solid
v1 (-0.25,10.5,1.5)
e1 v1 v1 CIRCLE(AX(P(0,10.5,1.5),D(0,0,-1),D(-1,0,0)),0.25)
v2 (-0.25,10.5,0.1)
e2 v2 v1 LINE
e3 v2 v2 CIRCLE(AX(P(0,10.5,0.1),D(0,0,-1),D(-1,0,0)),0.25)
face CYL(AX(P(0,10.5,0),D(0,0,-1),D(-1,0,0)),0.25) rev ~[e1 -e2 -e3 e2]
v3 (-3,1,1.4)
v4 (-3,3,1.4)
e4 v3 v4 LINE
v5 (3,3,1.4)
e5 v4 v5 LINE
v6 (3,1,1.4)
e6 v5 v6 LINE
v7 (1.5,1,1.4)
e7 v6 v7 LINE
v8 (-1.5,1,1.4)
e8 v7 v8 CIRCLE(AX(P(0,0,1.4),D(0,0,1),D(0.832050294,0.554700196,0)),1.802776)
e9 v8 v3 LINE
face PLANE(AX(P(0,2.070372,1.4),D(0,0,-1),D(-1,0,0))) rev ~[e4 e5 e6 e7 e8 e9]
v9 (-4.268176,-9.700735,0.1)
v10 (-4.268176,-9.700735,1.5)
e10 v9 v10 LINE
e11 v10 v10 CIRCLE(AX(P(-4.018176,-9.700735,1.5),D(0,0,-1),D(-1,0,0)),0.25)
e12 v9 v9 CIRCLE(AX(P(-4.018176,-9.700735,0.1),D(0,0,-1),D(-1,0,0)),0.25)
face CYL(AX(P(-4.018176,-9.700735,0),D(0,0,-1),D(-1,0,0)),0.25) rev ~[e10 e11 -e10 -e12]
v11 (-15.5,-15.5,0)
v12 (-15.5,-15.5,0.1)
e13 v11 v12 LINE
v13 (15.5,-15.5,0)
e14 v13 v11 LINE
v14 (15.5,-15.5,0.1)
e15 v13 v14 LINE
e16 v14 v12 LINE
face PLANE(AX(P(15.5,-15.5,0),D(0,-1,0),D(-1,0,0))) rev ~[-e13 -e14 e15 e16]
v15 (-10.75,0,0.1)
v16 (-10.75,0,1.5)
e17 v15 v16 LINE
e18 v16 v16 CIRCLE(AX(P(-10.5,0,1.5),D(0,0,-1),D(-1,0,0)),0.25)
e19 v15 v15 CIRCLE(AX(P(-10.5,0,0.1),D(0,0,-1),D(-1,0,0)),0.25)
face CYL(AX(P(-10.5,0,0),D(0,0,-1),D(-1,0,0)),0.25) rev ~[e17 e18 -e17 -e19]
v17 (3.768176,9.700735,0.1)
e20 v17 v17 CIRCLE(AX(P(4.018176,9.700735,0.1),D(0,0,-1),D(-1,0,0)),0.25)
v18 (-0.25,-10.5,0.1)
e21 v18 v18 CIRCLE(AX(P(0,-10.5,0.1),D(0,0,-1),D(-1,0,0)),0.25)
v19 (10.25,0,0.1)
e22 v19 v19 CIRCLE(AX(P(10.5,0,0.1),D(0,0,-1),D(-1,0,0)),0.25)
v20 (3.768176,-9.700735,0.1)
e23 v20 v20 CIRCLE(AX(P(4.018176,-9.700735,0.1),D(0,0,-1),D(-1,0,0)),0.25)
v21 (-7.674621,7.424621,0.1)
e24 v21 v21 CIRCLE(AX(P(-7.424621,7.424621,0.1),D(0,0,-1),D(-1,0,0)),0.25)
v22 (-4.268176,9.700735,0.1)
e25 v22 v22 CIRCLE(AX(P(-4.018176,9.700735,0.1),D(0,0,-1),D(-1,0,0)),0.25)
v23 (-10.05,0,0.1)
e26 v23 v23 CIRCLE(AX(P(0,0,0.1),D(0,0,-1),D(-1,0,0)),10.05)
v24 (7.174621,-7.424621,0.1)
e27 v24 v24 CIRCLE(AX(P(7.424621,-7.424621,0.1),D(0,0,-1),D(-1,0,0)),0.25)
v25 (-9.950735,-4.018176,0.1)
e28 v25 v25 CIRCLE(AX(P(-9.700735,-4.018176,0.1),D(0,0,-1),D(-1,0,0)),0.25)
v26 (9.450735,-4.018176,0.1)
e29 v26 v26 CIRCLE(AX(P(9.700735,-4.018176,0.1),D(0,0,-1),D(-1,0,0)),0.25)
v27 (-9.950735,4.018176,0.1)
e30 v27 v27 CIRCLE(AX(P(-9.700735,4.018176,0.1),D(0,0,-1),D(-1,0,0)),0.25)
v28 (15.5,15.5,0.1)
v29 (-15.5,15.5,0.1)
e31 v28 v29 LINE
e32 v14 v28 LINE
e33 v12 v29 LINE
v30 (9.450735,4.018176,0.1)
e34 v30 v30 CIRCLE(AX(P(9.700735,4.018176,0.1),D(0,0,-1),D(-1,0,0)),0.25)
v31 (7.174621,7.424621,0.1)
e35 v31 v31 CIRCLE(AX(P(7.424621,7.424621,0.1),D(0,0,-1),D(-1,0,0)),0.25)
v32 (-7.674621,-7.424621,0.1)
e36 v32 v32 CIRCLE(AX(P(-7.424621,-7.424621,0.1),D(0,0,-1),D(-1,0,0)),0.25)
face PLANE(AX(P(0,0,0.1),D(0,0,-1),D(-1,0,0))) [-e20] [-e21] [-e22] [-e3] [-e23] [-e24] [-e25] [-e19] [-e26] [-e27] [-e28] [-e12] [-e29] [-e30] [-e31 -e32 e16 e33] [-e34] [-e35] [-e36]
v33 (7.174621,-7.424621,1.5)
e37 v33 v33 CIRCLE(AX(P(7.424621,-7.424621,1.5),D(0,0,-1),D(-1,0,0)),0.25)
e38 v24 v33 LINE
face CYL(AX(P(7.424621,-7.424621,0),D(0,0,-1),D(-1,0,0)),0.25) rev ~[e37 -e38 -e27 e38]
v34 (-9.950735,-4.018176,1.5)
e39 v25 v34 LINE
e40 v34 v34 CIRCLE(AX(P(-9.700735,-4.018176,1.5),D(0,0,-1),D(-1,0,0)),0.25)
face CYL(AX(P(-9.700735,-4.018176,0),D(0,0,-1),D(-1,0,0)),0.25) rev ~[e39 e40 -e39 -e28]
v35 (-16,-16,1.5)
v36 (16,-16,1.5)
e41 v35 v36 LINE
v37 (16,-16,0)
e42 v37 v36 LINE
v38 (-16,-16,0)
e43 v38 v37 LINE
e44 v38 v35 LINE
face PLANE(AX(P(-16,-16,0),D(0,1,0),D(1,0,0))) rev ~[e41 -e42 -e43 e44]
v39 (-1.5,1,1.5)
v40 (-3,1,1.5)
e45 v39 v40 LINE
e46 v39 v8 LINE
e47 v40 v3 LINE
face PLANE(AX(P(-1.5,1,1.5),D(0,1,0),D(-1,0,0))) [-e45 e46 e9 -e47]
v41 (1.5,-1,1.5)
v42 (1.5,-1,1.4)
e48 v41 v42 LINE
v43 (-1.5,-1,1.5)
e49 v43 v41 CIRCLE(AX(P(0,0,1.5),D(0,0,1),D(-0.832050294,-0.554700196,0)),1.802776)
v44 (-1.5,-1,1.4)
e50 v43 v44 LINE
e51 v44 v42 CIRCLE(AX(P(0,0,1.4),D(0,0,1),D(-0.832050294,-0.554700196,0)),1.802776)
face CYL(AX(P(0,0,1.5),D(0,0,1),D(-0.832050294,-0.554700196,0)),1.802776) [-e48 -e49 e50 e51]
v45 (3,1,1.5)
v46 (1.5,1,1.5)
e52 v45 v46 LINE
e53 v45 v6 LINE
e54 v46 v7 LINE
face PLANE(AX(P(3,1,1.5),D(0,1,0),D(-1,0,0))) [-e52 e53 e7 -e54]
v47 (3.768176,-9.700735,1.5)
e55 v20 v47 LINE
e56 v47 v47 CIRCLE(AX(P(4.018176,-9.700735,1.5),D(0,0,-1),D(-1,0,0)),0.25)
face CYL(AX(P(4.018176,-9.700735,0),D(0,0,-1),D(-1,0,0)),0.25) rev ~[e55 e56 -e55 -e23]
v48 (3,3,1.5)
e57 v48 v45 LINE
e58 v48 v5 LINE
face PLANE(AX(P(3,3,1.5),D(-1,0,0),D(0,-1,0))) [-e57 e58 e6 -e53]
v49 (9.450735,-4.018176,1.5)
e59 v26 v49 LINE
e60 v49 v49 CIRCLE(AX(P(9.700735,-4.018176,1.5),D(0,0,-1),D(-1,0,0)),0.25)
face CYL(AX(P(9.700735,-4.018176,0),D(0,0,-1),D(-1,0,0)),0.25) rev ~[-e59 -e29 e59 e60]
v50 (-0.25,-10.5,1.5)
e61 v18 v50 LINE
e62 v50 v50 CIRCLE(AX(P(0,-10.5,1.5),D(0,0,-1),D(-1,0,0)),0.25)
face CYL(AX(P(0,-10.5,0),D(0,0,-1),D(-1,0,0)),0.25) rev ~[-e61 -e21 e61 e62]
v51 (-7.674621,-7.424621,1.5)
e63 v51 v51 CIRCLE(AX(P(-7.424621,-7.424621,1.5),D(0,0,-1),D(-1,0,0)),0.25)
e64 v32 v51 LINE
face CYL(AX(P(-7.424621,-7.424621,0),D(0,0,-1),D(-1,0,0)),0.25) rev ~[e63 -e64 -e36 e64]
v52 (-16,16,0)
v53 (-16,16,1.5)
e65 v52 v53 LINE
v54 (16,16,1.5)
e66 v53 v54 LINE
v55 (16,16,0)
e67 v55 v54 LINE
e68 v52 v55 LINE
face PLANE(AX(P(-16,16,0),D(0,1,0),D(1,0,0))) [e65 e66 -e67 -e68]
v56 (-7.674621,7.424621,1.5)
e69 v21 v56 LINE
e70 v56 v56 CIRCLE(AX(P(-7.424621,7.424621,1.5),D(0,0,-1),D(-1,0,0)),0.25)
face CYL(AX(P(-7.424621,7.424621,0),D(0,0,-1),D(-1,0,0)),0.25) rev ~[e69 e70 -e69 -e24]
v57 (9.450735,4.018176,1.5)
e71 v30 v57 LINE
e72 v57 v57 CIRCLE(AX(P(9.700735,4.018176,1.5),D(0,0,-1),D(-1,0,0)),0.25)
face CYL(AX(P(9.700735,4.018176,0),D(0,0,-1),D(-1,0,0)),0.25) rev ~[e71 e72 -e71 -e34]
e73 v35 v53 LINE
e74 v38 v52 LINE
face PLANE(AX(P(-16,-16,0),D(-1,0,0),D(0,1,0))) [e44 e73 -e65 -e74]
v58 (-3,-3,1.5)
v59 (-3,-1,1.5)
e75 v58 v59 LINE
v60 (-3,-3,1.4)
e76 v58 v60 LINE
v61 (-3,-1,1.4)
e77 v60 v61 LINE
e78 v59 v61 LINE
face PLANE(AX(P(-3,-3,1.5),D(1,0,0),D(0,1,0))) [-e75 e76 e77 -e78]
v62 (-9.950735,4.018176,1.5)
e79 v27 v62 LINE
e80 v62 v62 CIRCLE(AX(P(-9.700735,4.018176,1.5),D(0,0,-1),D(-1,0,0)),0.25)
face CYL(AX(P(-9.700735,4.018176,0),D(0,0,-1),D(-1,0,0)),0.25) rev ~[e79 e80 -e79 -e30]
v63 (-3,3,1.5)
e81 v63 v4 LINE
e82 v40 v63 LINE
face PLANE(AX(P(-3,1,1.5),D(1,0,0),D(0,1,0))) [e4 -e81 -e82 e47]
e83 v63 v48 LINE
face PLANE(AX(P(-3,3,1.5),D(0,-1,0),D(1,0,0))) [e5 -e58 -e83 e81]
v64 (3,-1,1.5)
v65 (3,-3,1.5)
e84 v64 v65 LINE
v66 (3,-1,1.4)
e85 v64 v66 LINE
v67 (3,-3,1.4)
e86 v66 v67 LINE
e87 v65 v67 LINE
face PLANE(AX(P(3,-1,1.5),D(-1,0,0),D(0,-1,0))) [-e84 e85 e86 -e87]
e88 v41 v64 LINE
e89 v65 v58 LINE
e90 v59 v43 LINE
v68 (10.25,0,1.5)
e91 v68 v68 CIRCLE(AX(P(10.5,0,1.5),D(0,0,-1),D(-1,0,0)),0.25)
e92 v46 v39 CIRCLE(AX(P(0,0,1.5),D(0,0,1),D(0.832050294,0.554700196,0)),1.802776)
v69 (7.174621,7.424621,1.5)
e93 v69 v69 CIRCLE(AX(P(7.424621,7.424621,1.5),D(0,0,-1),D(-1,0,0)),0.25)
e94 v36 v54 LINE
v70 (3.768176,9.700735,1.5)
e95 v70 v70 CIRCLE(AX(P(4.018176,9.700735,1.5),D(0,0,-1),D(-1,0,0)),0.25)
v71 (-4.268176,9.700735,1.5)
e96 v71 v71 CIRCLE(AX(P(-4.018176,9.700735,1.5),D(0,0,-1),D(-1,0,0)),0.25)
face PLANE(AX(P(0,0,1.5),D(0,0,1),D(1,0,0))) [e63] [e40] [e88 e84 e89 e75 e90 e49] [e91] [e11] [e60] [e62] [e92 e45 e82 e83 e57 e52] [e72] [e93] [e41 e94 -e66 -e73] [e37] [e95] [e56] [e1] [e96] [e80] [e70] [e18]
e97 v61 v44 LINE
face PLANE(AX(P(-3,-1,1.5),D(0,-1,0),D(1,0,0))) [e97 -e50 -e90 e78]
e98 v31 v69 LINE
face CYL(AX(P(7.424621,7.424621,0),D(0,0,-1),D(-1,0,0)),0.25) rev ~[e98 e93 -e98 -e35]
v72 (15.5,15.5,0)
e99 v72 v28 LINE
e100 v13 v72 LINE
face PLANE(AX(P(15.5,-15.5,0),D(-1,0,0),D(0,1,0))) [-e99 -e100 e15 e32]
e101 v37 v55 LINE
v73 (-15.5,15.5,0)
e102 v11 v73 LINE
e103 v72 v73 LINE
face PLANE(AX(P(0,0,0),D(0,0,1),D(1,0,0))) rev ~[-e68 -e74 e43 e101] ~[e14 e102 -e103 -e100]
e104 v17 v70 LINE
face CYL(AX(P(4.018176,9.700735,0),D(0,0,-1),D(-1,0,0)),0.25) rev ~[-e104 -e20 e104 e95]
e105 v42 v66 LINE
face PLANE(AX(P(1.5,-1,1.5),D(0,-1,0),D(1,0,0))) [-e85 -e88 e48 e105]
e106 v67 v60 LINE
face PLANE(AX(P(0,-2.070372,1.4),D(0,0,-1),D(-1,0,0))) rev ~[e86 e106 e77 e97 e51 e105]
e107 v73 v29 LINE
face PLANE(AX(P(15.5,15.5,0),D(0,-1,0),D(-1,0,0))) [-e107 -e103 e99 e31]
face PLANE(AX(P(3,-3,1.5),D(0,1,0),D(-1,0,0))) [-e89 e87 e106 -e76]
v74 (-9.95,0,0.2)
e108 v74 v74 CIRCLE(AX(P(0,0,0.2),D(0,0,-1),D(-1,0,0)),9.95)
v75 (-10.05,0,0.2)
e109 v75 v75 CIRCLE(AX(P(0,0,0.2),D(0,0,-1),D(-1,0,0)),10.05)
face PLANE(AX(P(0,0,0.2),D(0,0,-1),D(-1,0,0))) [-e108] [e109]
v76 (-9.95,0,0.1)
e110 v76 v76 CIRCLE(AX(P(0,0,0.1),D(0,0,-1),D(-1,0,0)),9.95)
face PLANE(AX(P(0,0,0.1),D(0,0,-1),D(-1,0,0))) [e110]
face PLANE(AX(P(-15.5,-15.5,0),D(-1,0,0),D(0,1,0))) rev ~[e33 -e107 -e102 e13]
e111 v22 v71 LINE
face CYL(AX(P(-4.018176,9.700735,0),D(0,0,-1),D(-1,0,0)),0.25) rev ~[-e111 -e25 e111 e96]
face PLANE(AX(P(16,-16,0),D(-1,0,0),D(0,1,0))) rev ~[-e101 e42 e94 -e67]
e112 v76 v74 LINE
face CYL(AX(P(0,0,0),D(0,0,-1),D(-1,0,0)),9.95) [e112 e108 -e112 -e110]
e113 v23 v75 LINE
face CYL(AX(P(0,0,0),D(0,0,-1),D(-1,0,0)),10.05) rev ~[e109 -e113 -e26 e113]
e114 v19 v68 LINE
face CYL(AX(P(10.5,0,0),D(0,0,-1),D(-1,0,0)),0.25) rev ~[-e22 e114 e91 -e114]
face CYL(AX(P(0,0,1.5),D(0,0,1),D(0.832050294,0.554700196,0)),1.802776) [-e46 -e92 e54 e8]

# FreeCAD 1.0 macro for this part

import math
import FreeCAD as App
import Part
import Sketcher
from FreeCAD import Vector


def add_polygon(sketch, points):
    """Adds a closed chain of lines whose ends are joined by coincident constraints."""
    first, n = sketch.GeometryCount, len(points)
    for a, b in zip(points, points[1:] + points[:1]):
        sketch.addGeometry(Part.LineSegment(App.Vector(*a, 0), App.Vector(*b, 0)), False)
    for i in range(n):
        sketch.addConstraint(Sketcher.Constraint("Coincident", first + i, 2, first + (i + 1) % n, 1))

doc = App.newDocument("Part")
params = doc.addObject("Spreadsheet::Sheet", "Params")
for row, (alias, value) in enumerate([
    ("sketch1_width", "32 mm"),
    ("pad1_length", "1.5 mm"),
    ("sketch2_diameter", "20.1 mm"),
    ("sketch2_diameter2", "19.9 mm"),
    ("pocket1_length", "0.2 mm"),
    ("sketch3_diameter", "0.5 mm"),
    ("sketch4_width", "31 mm"),
    ("pocket3_length", "0.1 mm"),
    ("sketch5_width", "6 mm"),
    ("sketch5_height", "2 mm"),
    ("sketch5_width2", "1.5 mm"),
    ("pocket4_length", "0.1 mm"),
], start=1):
    params.set(f"A{row}", alias)
    params.set(f"B{row}", "=" + value)
    params.setAlias(f"B{row}", alias)

body = doc.addObject("PartDesign::Body", "Body")

# Sketch on XY plane
sketch1 = body.newObject("Sketcher::SketchObject", "Sketch")
sketch1.AttachmentSupport = (doc.getObject("XY_Plane"), [""])
sketch1.MapMode = "FlatFace"
add_polygon(sketch1, [(-16, 16), (-16, -16), (16, -16), (16, 16)])  # lines 0-3
sketch1.addConstraint([
    Sketcher.Constraint("Vertical", 0),
    Sketcher.Constraint("Horizontal", 1),
    Sketcher.Constraint("Vertical", 2),
    Sketcher.Constraint("Horizontal", 3),
    Sketcher.Constraint("Symmetric", 0, 2, 2, 2, -1, 1),
    Sketcher.Constraint("Equal", 3, 0),
    Sketcher.Constraint("DistanceX", 1, 1, 1, 2, 32.0),
])
sketch1.setExpression("Constraints[10]", "Params.sketch1_width")
pad1 = body.newObject("PartDesign::Pad", "Pad")
pad1.Profile = sketch1
pad1.setExpression("Length", "Params.pad1_length")

# Sketch on XY plane
sketch2 = body.newObject("Sketcher::SketchObject", "Sketch001")
sketch2.AttachmentSupport = (doc.getObject("XY_Plane"), [""])
sketch2.MapMode = "FlatFace"
sketch2.addGeometry([
    Part.Circle(Vector(0, 0, 0), Vector(0, 0, 1), 10),
    Part.Circle(Vector(0, 0, 0), Vector(0, 0, 1), 10),
], False)
sketch2.addConstraint([
    Sketcher.Constraint("Coincident", 0, 3, -1, 1),
    Sketcher.Constraint("Coincident", 1, 3, -1, 1),
    Sketcher.Constraint("Diameter", 0, 20.1),
    Sketcher.Constraint("Diameter", 1, 19.9),
])
sketch2.setExpression("Constraints[2]", "Params.sketch2_diameter")
sketch2.setExpression("Constraints[3]", "Params.sketch2_diameter2")
pocket1 = body.newObject("PartDesign::Pocket", "Pocket")
pocket1.Profile = sketch2
pocket1.setExpression("Length", "Params.pocket1_length")
pocket1.Reversed = True

# Sketch on XY plane
sketch3 = body.newObject("Sketcher::SketchObject", "Sketch002")
sketch3.AttachmentSupport = (doc.getObject("XY_Plane"), [""])
sketch3.MapMode = "FlatFace"
sketch3.addGeometry([
    Part.Circle(Vector(0, 10.5, 0), Vector(0, 0, 1), 0.25),  # 0
    Part.Circle(Vector(-4.02, 9.7, 0), Vector(0, 0, 1), 0.25),  # 1
    Part.Circle(Vector(-7.42, 7.42, 0), Vector(0, 0, 1), 0.25),  # 2
    Part.Circle(Vector(-9.7, 4.02, 0), Vector(0, 0, 1), 0.25),  # 3
    Part.Circle(Vector(-10.5, 0, 0), Vector(0, 0, 1), 0.25),  # 4
    Part.Circle(Vector(-9.7, -4.02, 0), Vector(0, 0, 1), 0.25),  # 5
    Part.Circle(Vector(-7.42, -7.42, 0), Vector(0, 0, 1), 0.25),  # 6
    Part.Circle(Vector(-4.02, -9.7, 0), Vector(0, 0, 1), 0.25),  # 7
    Part.Circle(Vector(0, -10.5, 0), Vector(0, 0, 1), 0.25),  # 8
    Part.Circle(Vector(4.02, -9.7, 0), Vector(0, 0, 1), 0.25),  # 9
    Part.Circle(Vector(7.42, -7.42, 0), Vector(0, 0, 1), 0.25),  # 10
    Part.Circle(Vector(9.7, -4.02, 0), Vector(0, 0, 1), 0.25),  # 11
    Part.Circle(Vector(10.5, 0, 0), Vector(0, 0, 1), 0.25),  # 12
    Part.Circle(Vector(9.7, 4.02, 0), Vector(0, 0, 1), 0.25),  # 13
    Part.Circle(Vector(7.42, 7.42, 0), Vector(0, 0, 1), 0.25),  # 14
    Part.Circle(Vector(4.02, 9.7, 0), Vector(0, 0, 1), 0.25),  # 15
], False)
sketch3.addConstraint([
    Sketcher.Constraint("Equal", 0, 1),
    Sketcher.Constraint("Equal", 1, 2),
    Sketcher.Constraint("Equal", 2, 3),
    Sketcher.Constraint("Equal", 3, 4),
    Sketcher.Constraint("Equal", 4, 5),
    Sketcher.Constraint("Equal", 5, 6),
    Sketcher.Constraint("Equal", 6, 7),
    Sketcher.Constraint("Equal", 7, 8),
    Sketcher.Constraint("Equal", 8, 9),
    Sketcher.Constraint("Equal", 9, 10),
    Sketcher.Constraint("Equal", 10, 11),
    Sketcher.Constraint("Equal", 11, 12),
    Sketcher.Constraint("Equal", 12, 13),
    Sketcher.Constraint("Equal", 13, 14),
    Sketcher.Constraint("Equal", 14, 15),
    Sketcher.Constraint("Symmetric", 0, 3, 8, 3, -1, 1),
    Sketcher.Constraint("Symmetric", 1, 3, 9, 3, -1, 1),
    Sketcher.Constraint("Symmetric", 2, 3, 10, 3, -1, 1),
    Sketcher.Constraint("Symmetric", 3, 3, 11, 3, -1, 1),
    Sketcher.Constraint("Symmetric", 4, 3, 12, 3, -1, 1),
    Sketcher.Constraint("Symmetric", 5, 3, 13, 3, -1, 1),
    Sketcher.Constraint("Symmetric", 6, 3, 14, 3, -1, 1),
    Sketcher.Constraint("Symmetric", 7, 3, 15, 3, -1, 1),
    Sketcher.Constraint("Symmetric", 7, 3, 9, 3, -2),
    Sketcher.Constraint("Symmetric", 6, 3, 10, 3, -2),
    Sketcher.Constraint("Symmetric", 5, 3, 11, 3, -2),
    Sketcher.Constraint("PointOnObject", 0, 3, -2),
    Sketcher.Constraint("PointOnObject", 4, 3, -1),
    Sketcher.Constraint("Diameter", 0, 0.5),
    Sketcher.Constraint("DistanceY", -1, 1, 0, 3, 10.5),
    Sketcher.Constraint("DistanceX", 4, 3, -1, 1, 10.5),
    Sketcher.Constraint("DistanceX", 2, 3, -1, 1, 7.424621),
    Sketcher.Constraint("DistanceY", -1, 1, 2, 3, 7.424621),
    Sketcher.Constraint("DistanceX", 3, 3, 1, 3, 5.682559),
    Sketcher.Constraint("DistanceY", 3, 3, 1, 3, 5.682559),
    Sketcher.Constraint("DistanceY", 5, 3, 1, 3, 13.718911),
    Sketcher.Constraint("DistanceX", 5, 3, 9, 3, 13.718911),
])
sketch3.setExpression("Constraints[28]", "Params.sketch3_diameter")
pocket2 = body.newObject("PartDesign::Pocket", "Pocket001")
pocket2.Profile = sketch3
pocket2.Type = "ThroughAll"
pocket2.Reversed = True

# Sketch on XY plane
sketch4 = body.newObject("Sketcher::SketchObject", "Sketch003")
sketch4.AttachmentSupport = (doc.getObject("XY_Plane"), [""])
sketch4.MapMode = "FlatFace"
add_polygon(sketch4, [(16, 16), (16, -16), (-16, -16), (-16, 16)])  # lines 0-3
sketch4.addConstraint([
    Sketcher.Constraint("Vertical", 0),
    Sketcher.Constraint("Horizontal", 1),
    Sketcher.Constraint("Vertical", 2),
    Sketcher.Constraint("Horizontal", 3),
    Sketcher.Constraint("Symmetric", 0, 2, 2, 2, -1, 1),
    Sketcher.Constraint("Equal", 3, 0),
    Sketcher.Constraint("DistanceX", 1, 2, 1, 1, 31.0),
])
sketch4.setExpression("Constraints[10]", "Params.sketch4_width")
pocket3 = body.newObject("PartDesign::Pocket", "Pocket002")
pocket3.Profile = sketch4
pocket3.setExpression("Length", "Params.pocket3_length")
pocket3.Reversed = True

# Sketch on XY plane
sketch5 = body.newObject("Sketcher::SketchObject", "Sketch004")
sketch5.AttachmentSupport = (doc.getObject("XY_Plane"), [""])
sketch5.MapMode = "FlatFace"
sketch5.AttachmentOffset = App.Placement(Vector(0, 0, 1.5), App.Rotation())
sketch5.addGeometry([
    Part.LineSegment(Vector(3, 3, 0), Vector(-3, 3, 0)),  # 0
    Part.LineSegment(Vector(-3, 3, 0), Vector(-3, 1, 0)),  # 1
    Part.LineSegment(Vector(-3, 1, 0), Vector(-1.5, 1, 0)),  # 2
    Part.ArcOfCircle(Part.Circle(Vector(0, 0, 0), Vector(0, 0, 1), 1.8), math.radians(34), math.radians(146)),  # 3
    Part.LineSegment(Vector(1.5, 1, 0), Vector(3, 1, 0)),  # 4
    Part.LineSegment(Vector(3, 1, 0), Vector(3, 3, 0)),  # 5
    Part.LineSegment(Vector(-3, -1, 0), Vector(-3, -3, 0)),  # 6
    Part.LineSegment(Vector(-3, -3, 0), Vector(3, -3, 0)),  # 7
    Part.LineSegment(Vector(3, -3, 0), Vector(3, -1, 0)),  # 8
    Part.LineSegment(Vector(3, -1, 0), Vector(1.5, -1, 0)),  # 9
    Part.ArcOfCircle(Part.Circle(Vector(0, 0, 0), Vector(0, 0, 1), 1.8), math.radians(-146), math.radians(-34)),  # 10
    Part.LineSegment(Vector(-1.5, -1, 0), Vector(-3, -1, 0)),  # 11
], False)
sketch5.addConstraint([
    Sketcher.Constraint("Coincident", 0, 2, 1, 1),
    Sketcher.Constraint("Coincident", 1, 2, 2, 1),
    Sketcher.Constraint("Coincident", 2, 2, 3, 2),
    Sketcher.Constraint("Coincident", 3, 1, 4, 1),
    Sketcher.Constraint("Coincident", 4, 2, 5, 1),
    Sketcher.Constraint("Coincident", 5, 2, 0, 1),
    Sketcher.Constraint("Coincident", 6, 2, 7, 1),
    Sketcher.Constraint("Coincident", 7, 2, 8, 1),
    Sketcher.Constraint("Coincident", 8, 2, 9, 1),
    Sketcher.Constraint("Coincident", 9, 2, 10, 2),
    Sketcher.Constraint("Coincident", 10, 1, 11, 1),
    Sketcher.Constraint("Coincident", 11, 2, 6, 1),
    Sketcher.Constraint("Horizontal", 0),
    Sketcher.Constraint("Vertical", 1),
    Sketcher.Constraint("Horizontal", 2),
    Sketcher.Constraint("Horizontal", 4),
    Sketcher.Constraint("Vertical", 5),
    Sketcher.Constraint("Vertical", 6),
    Sketcher.Constraint("Horizontal", 7),
    Sketcher.Constraint("Vertical", 8),
    Sketcher.Constraint("Horizontal", 9),
    Sketcher.Constraint("Horizontal", 11),
    Sketcher.Constraint("Coincident", 3, 3, -1, 1),
    Sketcher.Constraint("Coincident", 10, 3, -1, 1),
    Sketcher.Constraint("Equal", 3, 10),
    Sketcher.Constraint("Symmetric", 5, 2, 6, 2, -1, 1),
    Sketcher.Constraint("Symmetric", 1, 2, 8, 2, -1, 1),
    Sketcher.Constraint("Symmetric", 1, 2, 4, 2, -2),
    Sketcher.Constraint("Horizontal", 9, 2, 10, 1),
    Sketcher.Constraint("DistanceX", 0, 2, 0, 1, 6.0),
    Sketcher.Constraint("DistanceY", 1, 2, 1, 1, 2.0),
    Sketcher.Constraint("DistanceX", 2, 1, 2, 2, 1.5),
    Sketcher.Constraint("DistanceY", -1, 1, 0, 2, 3.0),
])
sketch5.setExpression("Constraints[29]", "Params.sketch5_width")
sketch5.setExpression("Constraints[30]", "Params.sketch5_height")
sketch5.setExpression("Constraints[31]", "Params.sketch5_width2")
pocket4 = body.newObject("PartDesign::Pocket", "Pocket003")
pocket4.Profile = sketch5
pocket4.setExpression("Length", "Params.pocket4_length")

doc.recompute()
